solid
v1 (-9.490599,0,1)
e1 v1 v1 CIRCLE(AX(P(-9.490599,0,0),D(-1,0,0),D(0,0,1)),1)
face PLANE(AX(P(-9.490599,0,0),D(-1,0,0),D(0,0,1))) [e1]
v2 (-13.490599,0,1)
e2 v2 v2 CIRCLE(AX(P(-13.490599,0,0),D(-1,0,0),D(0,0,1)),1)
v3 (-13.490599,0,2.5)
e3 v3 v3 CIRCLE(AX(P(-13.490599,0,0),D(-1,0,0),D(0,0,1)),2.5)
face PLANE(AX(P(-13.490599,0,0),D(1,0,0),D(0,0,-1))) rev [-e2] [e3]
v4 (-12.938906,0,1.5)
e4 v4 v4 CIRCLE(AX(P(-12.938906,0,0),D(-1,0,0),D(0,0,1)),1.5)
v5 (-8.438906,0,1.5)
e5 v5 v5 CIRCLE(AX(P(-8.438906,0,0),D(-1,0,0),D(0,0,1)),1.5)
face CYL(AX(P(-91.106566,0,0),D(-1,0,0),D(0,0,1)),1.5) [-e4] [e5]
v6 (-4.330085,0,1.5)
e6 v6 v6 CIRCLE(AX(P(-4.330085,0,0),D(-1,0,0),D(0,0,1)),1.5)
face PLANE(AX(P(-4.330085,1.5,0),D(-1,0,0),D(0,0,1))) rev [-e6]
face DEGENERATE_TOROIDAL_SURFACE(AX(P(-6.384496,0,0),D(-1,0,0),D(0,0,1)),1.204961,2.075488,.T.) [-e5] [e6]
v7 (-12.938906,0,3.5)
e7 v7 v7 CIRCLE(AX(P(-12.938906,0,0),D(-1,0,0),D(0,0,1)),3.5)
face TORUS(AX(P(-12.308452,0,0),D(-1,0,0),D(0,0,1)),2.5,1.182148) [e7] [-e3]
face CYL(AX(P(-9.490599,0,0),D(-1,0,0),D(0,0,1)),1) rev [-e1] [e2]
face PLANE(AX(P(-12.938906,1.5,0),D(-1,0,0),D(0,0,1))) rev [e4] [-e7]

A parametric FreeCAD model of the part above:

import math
import FreeCAD as App
import Part
import Sketcher

V = App.Vector

doc = App.newDocument("Part")
body = doc.addObject("PartDesign::Body", "Body")

sketch1 = body.newObject("Sketcher::SketchObject", "Sketch")
sketch1.AttachmentSupport = (doc.getObject("XY_Plane"), [""])
sketch1.MapMode = "FlatFace"
sketch1.addGeometry([
    Part.LineSegment(V(-13.5, 2.5, 0), V(-13.5, 0, 0)),
    Part.LineSegment(V(-13.5, 0, 0), V(-4.3, 0, 0)),
    Part.LineSegment(V(-4.3, 0, 0), V(-4.3, 1.5, 0)),
    Part.ArcOfCircle(Part.Circle(V(-6.4, 1.2, 0), V(0, 0, 1), 2.1), math.radians(8), math.radians(172)),
    Part.LineSegment(V(-8.4, 1.5, 0), V(-12.9, 1.5, 0)),
    Part.LineSegment(V(-12.9, 1.5, 0), V(-12.9, 3.5, 0)),
    Part.ArcOfCircle(Part.Circle(V(-12.3, 2.5, 0), V(0, 0, 1), 1.2), math.radians(122), math.radians(180)),
], False)
sketch1.addConstraint([
    Sketcher.Constraint("Coincident", 0, 2, 1, 1),
    Sketcher.Constraint("Coincident", 1, 2, 2, 1),
    Sketcher.Constraint("Coincident", 2, 2, 3, 1),
    Sketcher.Constraint("Coincident", 3, 2, 4, 1),
    Sketcher.Constraint("Coincident", 4, 2, 5, 1),
    Sketcher.Constraint("Coincident", 5, 2, 6, 1),
    Sketcher.Constraint("Tangent", 6, 2, 0, 1),
    Sketcher.Constraint("Vertical", 0),
    Sketcher.Constraint("Horizontal", 1),
    Sketcher.Constraint("Vertical", 2),
    Sketcher.Constraint("Horizontal", 4),
    Sketcher.Constraint("Vertical", 5),
    Sketcher.Constraint("PointOnObject", 0, 2, -1),
    Sketcher.Constraint("Horizontal", 2, 2, 3, 2),
    Sketcher.Constraint("DistanceY", 5, 1, 5, 2, 2.0),
    Sketcher.Constraint("DistanceX", 4, 2, 4, 1, 4.5),
    Sketcher.Constraint("DistanceY", 0, 2, 0, 1, 2.5),
    Sketcher.Constraint("DistanceY", 2, 1, 2, 2, 1.5),
    Sketcher.Constraint("Radius", 3, 2.075488),
    Sketcher.Constraint("Radius", 6, 1.182148),
    Sketcher.Constraint("DistanceX", 0, 2, -1, 1, 13.490599),
    Sketcher.Constraint("DistanceX", 1, 1, 1, 2, 9.160515),
])
revolution = body.newObject("PartDesign::Revolution", "Revolution")
revolution.Profile = sketch1
revolution.ReferenceAxis = (sketch1, ["H_Axis"])
revolution.Angle = 360

sketch2 = body.newObject("Sketcher::SketchObject", "Sketch001")
sketch2.AttachmentSupport = (doc.getObject("YZ_Plane"), [""])
sketch2.MapMode = "FlatFace"
sketch2.AttachmentOffset = App.Placement(V(0, 0, -13.490599), App.Rotation())
sketch2.addGeometry(Part.Circle(V(0, 0, 0), V(0, 0, 1), 1), False)
sketch2.addConstraint([
    Sketcher.Constraint("Coincident", 0, 3, -1, 1),
    Sketcher.Constraint("Diameter", 0, 2.0),
])
pocket1 = body.newObject("PartDesign::Pocket", "Pocket")
pocket1.Profile = sketch2
pocket1.Length = 4
pocket1.Reversed = True

doc.recompute()
